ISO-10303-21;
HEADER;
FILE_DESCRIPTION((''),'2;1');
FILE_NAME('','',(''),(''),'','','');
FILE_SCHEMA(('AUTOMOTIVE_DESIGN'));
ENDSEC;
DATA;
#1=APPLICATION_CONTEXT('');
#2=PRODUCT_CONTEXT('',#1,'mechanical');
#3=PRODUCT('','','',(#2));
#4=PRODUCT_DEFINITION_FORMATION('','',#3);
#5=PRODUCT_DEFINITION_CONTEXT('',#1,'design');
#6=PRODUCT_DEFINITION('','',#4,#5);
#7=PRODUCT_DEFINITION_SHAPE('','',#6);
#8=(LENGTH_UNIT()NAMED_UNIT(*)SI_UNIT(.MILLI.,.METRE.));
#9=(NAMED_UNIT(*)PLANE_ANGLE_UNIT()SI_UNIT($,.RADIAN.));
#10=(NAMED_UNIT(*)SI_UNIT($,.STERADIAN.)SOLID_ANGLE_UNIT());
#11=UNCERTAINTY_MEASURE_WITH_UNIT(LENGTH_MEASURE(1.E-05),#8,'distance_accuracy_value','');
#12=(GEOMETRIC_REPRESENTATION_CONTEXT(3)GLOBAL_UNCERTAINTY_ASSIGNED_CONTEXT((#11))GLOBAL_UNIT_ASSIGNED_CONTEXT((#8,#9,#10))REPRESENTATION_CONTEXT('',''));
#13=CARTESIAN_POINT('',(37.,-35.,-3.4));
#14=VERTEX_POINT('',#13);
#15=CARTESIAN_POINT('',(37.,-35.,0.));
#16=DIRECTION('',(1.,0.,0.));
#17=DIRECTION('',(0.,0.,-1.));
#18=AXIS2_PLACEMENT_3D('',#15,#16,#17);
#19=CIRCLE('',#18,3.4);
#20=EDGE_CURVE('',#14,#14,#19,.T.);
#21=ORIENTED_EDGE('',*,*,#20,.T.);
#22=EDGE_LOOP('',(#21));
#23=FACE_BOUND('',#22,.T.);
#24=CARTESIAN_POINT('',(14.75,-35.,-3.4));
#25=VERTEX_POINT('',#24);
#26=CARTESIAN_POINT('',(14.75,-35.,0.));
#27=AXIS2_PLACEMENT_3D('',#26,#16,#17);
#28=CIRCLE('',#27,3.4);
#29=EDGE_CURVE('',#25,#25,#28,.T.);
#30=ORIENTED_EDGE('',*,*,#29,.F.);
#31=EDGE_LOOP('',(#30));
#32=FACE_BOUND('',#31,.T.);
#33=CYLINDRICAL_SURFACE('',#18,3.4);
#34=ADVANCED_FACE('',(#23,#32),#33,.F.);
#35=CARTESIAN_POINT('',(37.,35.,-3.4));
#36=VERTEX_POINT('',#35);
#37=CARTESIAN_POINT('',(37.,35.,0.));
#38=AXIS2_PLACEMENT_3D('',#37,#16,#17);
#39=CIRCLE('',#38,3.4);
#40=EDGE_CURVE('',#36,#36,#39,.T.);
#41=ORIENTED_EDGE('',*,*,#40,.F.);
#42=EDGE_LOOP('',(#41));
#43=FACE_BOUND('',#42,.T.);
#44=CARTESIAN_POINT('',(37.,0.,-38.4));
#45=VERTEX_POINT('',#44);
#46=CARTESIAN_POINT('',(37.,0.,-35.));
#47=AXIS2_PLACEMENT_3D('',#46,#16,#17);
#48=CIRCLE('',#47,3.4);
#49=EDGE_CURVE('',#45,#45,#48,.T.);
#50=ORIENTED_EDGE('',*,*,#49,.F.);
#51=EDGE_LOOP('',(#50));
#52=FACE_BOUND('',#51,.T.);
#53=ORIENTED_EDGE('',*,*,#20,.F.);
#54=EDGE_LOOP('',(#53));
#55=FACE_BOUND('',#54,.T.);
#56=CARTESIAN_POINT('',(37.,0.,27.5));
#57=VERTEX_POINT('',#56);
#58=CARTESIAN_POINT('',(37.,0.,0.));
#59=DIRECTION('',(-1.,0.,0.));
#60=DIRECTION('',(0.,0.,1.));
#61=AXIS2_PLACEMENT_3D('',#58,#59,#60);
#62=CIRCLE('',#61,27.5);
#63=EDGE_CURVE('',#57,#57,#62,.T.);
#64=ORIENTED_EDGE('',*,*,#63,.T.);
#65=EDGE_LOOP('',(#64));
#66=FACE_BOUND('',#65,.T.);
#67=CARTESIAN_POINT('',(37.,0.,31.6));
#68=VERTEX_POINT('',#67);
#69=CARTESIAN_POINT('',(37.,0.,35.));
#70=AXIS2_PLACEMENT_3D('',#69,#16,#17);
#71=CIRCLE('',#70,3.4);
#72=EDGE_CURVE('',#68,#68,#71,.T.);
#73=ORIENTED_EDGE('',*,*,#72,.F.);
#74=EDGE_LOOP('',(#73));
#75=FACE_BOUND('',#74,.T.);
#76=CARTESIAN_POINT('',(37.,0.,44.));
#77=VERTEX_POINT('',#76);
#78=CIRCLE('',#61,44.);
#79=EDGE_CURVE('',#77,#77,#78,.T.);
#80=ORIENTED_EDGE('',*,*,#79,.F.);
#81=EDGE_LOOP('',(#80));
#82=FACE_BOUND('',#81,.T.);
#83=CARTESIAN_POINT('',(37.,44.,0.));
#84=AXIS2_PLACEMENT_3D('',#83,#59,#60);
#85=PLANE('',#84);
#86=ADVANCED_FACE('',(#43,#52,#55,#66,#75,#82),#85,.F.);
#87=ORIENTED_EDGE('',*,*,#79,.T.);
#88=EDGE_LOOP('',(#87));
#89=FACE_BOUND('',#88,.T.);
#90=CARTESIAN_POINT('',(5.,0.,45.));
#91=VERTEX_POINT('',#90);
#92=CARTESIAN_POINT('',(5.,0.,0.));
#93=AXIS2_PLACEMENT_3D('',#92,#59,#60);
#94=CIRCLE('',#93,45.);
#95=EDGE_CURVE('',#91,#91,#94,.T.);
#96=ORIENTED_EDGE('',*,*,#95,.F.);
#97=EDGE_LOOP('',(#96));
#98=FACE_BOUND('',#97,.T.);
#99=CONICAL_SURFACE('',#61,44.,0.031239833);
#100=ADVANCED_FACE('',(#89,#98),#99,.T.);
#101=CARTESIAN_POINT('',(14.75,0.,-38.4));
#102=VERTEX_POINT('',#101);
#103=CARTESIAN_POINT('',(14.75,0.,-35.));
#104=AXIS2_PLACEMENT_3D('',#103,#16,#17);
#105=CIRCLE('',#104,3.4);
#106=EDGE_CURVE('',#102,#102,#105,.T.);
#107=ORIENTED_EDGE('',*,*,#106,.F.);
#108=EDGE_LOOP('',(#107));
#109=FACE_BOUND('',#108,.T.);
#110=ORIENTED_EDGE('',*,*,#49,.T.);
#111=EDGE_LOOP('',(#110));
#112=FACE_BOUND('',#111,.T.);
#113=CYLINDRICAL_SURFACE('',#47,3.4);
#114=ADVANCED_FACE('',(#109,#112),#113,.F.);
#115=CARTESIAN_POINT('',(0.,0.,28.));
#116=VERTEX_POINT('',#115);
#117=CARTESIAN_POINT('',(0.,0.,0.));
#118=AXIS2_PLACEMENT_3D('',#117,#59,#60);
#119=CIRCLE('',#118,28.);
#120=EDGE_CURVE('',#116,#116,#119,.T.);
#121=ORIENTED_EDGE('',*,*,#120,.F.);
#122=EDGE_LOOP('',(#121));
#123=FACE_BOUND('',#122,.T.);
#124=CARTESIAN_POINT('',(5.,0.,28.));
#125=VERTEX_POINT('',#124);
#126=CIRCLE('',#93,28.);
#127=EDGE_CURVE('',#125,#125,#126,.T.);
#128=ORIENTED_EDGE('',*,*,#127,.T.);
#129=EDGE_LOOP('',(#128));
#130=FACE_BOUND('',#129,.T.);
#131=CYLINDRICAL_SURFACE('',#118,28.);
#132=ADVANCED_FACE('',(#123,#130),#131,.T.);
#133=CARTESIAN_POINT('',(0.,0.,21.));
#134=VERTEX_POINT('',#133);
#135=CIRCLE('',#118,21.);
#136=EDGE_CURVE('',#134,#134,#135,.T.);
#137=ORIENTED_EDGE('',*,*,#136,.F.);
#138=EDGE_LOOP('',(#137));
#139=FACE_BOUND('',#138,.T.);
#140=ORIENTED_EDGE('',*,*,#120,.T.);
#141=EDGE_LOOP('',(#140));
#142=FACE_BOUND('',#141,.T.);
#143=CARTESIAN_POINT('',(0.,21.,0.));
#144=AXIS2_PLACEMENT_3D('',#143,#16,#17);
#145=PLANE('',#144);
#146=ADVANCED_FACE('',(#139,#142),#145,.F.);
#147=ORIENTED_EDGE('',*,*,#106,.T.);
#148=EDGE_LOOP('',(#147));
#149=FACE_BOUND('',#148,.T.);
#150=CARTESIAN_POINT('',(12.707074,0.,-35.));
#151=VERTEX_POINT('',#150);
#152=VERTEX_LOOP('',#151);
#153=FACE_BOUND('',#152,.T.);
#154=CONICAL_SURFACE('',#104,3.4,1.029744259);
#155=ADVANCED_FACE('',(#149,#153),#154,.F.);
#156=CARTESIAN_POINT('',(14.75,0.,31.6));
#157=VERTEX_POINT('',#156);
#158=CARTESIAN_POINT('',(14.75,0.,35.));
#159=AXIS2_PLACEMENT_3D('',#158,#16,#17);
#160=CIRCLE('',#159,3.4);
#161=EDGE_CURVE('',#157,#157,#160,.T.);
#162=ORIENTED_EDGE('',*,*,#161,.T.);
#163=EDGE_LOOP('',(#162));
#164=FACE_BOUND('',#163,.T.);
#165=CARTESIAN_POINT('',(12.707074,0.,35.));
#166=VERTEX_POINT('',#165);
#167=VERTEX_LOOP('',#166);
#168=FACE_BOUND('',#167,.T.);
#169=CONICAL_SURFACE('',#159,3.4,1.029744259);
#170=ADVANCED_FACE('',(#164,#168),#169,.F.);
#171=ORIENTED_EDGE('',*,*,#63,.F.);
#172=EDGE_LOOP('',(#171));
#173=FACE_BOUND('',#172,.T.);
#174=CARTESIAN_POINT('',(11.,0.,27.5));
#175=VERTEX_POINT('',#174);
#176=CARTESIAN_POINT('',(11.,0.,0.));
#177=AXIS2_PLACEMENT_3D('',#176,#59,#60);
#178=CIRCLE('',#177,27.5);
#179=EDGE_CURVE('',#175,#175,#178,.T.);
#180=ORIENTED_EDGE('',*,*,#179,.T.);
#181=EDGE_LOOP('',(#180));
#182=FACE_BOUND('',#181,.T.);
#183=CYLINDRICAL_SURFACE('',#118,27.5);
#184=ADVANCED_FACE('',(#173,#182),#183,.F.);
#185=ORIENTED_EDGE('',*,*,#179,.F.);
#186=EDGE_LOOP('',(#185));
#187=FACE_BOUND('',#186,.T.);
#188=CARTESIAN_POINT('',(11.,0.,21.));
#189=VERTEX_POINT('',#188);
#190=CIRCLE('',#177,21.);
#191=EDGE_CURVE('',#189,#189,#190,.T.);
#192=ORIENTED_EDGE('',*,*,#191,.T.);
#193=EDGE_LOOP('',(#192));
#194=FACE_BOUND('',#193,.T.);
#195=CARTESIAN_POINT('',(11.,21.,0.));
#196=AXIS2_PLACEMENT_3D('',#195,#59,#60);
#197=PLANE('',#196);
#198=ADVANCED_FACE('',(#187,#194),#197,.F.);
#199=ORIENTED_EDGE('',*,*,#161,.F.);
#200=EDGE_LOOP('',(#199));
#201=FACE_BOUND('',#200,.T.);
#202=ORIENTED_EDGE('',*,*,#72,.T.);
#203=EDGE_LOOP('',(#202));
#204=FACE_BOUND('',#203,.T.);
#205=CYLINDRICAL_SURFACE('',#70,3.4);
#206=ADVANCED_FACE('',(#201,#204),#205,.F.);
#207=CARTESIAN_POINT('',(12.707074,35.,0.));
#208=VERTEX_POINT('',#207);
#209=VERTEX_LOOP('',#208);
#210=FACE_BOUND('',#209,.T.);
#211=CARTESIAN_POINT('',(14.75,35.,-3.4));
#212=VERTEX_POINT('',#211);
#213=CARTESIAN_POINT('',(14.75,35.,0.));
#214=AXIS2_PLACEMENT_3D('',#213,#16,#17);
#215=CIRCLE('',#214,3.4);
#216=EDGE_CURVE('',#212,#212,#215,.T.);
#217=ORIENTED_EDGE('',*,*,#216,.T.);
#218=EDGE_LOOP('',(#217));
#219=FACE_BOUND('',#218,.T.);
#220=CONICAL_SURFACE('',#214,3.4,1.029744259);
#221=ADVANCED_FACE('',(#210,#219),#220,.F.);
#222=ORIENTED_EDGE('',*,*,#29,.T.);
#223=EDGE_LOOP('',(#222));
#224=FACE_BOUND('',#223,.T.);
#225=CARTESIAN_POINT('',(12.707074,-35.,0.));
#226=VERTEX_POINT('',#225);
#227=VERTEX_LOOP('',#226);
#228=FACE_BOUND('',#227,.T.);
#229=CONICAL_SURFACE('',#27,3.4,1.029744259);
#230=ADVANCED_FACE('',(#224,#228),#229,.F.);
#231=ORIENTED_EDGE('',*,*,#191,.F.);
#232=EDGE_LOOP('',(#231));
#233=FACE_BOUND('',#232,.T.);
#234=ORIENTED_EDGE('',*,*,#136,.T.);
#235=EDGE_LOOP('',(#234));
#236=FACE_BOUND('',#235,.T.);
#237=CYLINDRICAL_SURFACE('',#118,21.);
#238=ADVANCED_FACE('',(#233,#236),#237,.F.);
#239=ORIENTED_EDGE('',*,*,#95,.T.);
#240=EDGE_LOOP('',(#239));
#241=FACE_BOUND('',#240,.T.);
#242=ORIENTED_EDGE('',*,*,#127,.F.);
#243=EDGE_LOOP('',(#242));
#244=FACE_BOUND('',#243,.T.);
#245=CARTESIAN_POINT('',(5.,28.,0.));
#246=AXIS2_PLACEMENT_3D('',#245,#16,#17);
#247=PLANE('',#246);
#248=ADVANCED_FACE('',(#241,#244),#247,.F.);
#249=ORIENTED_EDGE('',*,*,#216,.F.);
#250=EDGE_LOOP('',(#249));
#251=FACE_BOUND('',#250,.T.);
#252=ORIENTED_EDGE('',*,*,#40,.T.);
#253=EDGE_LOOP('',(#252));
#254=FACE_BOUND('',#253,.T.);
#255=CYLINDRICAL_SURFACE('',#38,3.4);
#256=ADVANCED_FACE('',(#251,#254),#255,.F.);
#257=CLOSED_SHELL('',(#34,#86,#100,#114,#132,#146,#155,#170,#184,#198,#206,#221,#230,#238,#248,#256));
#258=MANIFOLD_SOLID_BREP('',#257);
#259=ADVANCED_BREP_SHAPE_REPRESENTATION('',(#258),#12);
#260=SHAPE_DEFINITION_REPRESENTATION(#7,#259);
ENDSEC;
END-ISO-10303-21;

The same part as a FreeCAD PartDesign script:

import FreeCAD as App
import Part
import Sketcher
Q = App.Units.Quantity


def add_polygon(sketch, points):
    """Adds a closed chain of lines whose ends are joined by coincident constraints."""
    first, n = sketch.GeometryCount, len(points)
    for a, b in zip(points, points[1:] + points[:1]):
        sketch.addGeometry(Part.LineSegment(App.Vector(*a, 0), App.Vector(*b, 0)), False)
    for i in range(n):
        sketch.addConstraint(Sketcher.Constraint("Coincident", first + i, 2, first + (i + 1) % n, 1))

doc = App.newDocument("Part")
params = doc.addObject("Spreadsheet::Sheet", "Params")
for row, (alias, value) in enumerate([
    ("sketch1_width", "11 mm"),
    ("sketch1_width2", "26 mm"),
    ("sketch1_width3", "5 mm"),
    ("sketch1_height", "17 mm"),
    ("sketch1_height2", "7 mm"),
    ("revolution_angle", "360 deg"),
    ("sketch2_height", "3.4 mm"),
    ("sketch2_width", "22.25 mm"),
    ("groove_angle", "360 deg"),
], start=1):
    params.set(f"A{row}", alias)
    params.set(f"B{row}", "=" + value)
    params.setAlias(f"B{row}", alias)

body = doc.addObject("PartDesign::Body", "Body")

sketch1 = body.newObject("Sketcher::SketchObject", "Sketch")
sketch1.AttachmentSupport = (doc.getObject("XY_Plane"), [""])
sketch1.MapMode = "FlatFace"
add_polygon(sketch1, [(0, 21), (11, 21), (11, 27.5), (37, 27.5), (37, 44), (5, 45), (5, 28), (0, 28)])
sketch1.addConstraint([
    Sketcher.Constraint("Horizontal", 0),
    Sketcher.Constraint("Vertical", 1),
    Sketcher.Constraint("Horizontal", 2),
    Sketcher.Constraint("Vertical", 3),
    Sketcher.Constraint("Vertical", 5),
    Sketcher.Constraint("Horizontal", 6),
    Sketcher.Constraint("Vertical", 7),
    Sketcher.Constraint("PointOnObject", 6, 2, -2),
    Sketcher.Constraint("DistanceX", 0, 1, 0, 2, Q("11 mm")),
    Sketcher.Constraint("DistanceX", 2, 1, 2, 2, Q("26 mm")),
    Sketcher.Constraint("DistanceX", 6, 2, 6, 1, Q("5 mm")),
    Sketcher.Constraint("DistanceY", 5, 2, 5, 1, Q("17 mm")),
    Sketcher.Constraint("DistanceY", 7, 2, 7, 1, Q("7 mm")),
    Sketcher.Constraint("DistanceY", 1, 1, 1, 2, Q("6.5 mm")),
    Sketcher.Constraint("DistanceY", 3, 1, 3, 2, Q("16.5 mm")),
    Sketcher.Constraint("DistanceY", -1, 1, 0, 2, Q("21 mm")),
])
sketch1.setExpression("Constraints[16]", "Params.sketch1_width")
sketch1.setExpression("Constraints[17]", "Params.sketch1_width2")
sketch1.setExpression("Constraints[18]", "Params.sketch1_width3")
sketch1.setExpression("Constraints[19]", "Params.sketch1_height")
sketch1.setExpression("Constraints[20]", "Params.sketch1_height2")
revolution = body.newObject("PartDesign::Revolution", "Revolution")
revolution.Profile = sketch1
revolution.ReferenceAxis = (sketch1, ["H_Axis"])
revolution.setExpression("Angle", "Params.revolution_angle")

sketch2 = body.newObject("Sketcher::SketchObject", "Sketch001")
sketch2.AttachmentSupport = (doc.getObject("XZ_Plane"), [""])
sketch2.MapMode = "FlatFace"
sketch2.AttachmentOffset = App.Placement(App.Vector(0, 0, -35), App.Rotation())
add_polygon(sketch2, [(12.707074, 0), (37, 0), (37, -3.4), (14.75, -3.4)])
sketch2.addConstraint([
    Sketcher.Constraint("Horizontal", 0),
    Sketcher.Constraint("Vertical", 1),
    Sketcher.Constraint("Horizontal", 2),
    Sketcher.Constraint("PointOnObject", 0, 2, -1),
    Sketcher.Constraint("Angle", 3, Q("121 deg")),
    Sketcher.Constraint("DistanceY", 1, 2, 1, 1, Q("3.4 mm")),
    Sketcher.Constraint("DistanceX", -1, 1, 0, 2, Q("37 mm")),
    Sketcher.Constraint("DistanceX", 2, 2, 2, 1, Q("22.25 mm")),
])
sketch2.setExpression("Constraints[9]", "Params.sketch2_height")
sketch2.setExpression("Constraints[11]", "Params.sketch2_width")
groove = body.newObject("PartDesign::Groove", "Groove")
groove.Profile = sketch2
groove.ReferenceAxis = (sketch2, ["H_Axis"])
groove.setExpression("Angle", "Params.groove_angle")
doc.recompute()

polarpattern = body.newObject("PartDesign::PolarPattern", "PolarPattern")
polarpattern.Originals = [groove]
polarpattern.Axis = (doc.getObject("X_Axis"), [""])
polarpattern.Angle = 360
polarpattern.Occurrences = 4
body.Tip = polarpattern

doc.recompute()
